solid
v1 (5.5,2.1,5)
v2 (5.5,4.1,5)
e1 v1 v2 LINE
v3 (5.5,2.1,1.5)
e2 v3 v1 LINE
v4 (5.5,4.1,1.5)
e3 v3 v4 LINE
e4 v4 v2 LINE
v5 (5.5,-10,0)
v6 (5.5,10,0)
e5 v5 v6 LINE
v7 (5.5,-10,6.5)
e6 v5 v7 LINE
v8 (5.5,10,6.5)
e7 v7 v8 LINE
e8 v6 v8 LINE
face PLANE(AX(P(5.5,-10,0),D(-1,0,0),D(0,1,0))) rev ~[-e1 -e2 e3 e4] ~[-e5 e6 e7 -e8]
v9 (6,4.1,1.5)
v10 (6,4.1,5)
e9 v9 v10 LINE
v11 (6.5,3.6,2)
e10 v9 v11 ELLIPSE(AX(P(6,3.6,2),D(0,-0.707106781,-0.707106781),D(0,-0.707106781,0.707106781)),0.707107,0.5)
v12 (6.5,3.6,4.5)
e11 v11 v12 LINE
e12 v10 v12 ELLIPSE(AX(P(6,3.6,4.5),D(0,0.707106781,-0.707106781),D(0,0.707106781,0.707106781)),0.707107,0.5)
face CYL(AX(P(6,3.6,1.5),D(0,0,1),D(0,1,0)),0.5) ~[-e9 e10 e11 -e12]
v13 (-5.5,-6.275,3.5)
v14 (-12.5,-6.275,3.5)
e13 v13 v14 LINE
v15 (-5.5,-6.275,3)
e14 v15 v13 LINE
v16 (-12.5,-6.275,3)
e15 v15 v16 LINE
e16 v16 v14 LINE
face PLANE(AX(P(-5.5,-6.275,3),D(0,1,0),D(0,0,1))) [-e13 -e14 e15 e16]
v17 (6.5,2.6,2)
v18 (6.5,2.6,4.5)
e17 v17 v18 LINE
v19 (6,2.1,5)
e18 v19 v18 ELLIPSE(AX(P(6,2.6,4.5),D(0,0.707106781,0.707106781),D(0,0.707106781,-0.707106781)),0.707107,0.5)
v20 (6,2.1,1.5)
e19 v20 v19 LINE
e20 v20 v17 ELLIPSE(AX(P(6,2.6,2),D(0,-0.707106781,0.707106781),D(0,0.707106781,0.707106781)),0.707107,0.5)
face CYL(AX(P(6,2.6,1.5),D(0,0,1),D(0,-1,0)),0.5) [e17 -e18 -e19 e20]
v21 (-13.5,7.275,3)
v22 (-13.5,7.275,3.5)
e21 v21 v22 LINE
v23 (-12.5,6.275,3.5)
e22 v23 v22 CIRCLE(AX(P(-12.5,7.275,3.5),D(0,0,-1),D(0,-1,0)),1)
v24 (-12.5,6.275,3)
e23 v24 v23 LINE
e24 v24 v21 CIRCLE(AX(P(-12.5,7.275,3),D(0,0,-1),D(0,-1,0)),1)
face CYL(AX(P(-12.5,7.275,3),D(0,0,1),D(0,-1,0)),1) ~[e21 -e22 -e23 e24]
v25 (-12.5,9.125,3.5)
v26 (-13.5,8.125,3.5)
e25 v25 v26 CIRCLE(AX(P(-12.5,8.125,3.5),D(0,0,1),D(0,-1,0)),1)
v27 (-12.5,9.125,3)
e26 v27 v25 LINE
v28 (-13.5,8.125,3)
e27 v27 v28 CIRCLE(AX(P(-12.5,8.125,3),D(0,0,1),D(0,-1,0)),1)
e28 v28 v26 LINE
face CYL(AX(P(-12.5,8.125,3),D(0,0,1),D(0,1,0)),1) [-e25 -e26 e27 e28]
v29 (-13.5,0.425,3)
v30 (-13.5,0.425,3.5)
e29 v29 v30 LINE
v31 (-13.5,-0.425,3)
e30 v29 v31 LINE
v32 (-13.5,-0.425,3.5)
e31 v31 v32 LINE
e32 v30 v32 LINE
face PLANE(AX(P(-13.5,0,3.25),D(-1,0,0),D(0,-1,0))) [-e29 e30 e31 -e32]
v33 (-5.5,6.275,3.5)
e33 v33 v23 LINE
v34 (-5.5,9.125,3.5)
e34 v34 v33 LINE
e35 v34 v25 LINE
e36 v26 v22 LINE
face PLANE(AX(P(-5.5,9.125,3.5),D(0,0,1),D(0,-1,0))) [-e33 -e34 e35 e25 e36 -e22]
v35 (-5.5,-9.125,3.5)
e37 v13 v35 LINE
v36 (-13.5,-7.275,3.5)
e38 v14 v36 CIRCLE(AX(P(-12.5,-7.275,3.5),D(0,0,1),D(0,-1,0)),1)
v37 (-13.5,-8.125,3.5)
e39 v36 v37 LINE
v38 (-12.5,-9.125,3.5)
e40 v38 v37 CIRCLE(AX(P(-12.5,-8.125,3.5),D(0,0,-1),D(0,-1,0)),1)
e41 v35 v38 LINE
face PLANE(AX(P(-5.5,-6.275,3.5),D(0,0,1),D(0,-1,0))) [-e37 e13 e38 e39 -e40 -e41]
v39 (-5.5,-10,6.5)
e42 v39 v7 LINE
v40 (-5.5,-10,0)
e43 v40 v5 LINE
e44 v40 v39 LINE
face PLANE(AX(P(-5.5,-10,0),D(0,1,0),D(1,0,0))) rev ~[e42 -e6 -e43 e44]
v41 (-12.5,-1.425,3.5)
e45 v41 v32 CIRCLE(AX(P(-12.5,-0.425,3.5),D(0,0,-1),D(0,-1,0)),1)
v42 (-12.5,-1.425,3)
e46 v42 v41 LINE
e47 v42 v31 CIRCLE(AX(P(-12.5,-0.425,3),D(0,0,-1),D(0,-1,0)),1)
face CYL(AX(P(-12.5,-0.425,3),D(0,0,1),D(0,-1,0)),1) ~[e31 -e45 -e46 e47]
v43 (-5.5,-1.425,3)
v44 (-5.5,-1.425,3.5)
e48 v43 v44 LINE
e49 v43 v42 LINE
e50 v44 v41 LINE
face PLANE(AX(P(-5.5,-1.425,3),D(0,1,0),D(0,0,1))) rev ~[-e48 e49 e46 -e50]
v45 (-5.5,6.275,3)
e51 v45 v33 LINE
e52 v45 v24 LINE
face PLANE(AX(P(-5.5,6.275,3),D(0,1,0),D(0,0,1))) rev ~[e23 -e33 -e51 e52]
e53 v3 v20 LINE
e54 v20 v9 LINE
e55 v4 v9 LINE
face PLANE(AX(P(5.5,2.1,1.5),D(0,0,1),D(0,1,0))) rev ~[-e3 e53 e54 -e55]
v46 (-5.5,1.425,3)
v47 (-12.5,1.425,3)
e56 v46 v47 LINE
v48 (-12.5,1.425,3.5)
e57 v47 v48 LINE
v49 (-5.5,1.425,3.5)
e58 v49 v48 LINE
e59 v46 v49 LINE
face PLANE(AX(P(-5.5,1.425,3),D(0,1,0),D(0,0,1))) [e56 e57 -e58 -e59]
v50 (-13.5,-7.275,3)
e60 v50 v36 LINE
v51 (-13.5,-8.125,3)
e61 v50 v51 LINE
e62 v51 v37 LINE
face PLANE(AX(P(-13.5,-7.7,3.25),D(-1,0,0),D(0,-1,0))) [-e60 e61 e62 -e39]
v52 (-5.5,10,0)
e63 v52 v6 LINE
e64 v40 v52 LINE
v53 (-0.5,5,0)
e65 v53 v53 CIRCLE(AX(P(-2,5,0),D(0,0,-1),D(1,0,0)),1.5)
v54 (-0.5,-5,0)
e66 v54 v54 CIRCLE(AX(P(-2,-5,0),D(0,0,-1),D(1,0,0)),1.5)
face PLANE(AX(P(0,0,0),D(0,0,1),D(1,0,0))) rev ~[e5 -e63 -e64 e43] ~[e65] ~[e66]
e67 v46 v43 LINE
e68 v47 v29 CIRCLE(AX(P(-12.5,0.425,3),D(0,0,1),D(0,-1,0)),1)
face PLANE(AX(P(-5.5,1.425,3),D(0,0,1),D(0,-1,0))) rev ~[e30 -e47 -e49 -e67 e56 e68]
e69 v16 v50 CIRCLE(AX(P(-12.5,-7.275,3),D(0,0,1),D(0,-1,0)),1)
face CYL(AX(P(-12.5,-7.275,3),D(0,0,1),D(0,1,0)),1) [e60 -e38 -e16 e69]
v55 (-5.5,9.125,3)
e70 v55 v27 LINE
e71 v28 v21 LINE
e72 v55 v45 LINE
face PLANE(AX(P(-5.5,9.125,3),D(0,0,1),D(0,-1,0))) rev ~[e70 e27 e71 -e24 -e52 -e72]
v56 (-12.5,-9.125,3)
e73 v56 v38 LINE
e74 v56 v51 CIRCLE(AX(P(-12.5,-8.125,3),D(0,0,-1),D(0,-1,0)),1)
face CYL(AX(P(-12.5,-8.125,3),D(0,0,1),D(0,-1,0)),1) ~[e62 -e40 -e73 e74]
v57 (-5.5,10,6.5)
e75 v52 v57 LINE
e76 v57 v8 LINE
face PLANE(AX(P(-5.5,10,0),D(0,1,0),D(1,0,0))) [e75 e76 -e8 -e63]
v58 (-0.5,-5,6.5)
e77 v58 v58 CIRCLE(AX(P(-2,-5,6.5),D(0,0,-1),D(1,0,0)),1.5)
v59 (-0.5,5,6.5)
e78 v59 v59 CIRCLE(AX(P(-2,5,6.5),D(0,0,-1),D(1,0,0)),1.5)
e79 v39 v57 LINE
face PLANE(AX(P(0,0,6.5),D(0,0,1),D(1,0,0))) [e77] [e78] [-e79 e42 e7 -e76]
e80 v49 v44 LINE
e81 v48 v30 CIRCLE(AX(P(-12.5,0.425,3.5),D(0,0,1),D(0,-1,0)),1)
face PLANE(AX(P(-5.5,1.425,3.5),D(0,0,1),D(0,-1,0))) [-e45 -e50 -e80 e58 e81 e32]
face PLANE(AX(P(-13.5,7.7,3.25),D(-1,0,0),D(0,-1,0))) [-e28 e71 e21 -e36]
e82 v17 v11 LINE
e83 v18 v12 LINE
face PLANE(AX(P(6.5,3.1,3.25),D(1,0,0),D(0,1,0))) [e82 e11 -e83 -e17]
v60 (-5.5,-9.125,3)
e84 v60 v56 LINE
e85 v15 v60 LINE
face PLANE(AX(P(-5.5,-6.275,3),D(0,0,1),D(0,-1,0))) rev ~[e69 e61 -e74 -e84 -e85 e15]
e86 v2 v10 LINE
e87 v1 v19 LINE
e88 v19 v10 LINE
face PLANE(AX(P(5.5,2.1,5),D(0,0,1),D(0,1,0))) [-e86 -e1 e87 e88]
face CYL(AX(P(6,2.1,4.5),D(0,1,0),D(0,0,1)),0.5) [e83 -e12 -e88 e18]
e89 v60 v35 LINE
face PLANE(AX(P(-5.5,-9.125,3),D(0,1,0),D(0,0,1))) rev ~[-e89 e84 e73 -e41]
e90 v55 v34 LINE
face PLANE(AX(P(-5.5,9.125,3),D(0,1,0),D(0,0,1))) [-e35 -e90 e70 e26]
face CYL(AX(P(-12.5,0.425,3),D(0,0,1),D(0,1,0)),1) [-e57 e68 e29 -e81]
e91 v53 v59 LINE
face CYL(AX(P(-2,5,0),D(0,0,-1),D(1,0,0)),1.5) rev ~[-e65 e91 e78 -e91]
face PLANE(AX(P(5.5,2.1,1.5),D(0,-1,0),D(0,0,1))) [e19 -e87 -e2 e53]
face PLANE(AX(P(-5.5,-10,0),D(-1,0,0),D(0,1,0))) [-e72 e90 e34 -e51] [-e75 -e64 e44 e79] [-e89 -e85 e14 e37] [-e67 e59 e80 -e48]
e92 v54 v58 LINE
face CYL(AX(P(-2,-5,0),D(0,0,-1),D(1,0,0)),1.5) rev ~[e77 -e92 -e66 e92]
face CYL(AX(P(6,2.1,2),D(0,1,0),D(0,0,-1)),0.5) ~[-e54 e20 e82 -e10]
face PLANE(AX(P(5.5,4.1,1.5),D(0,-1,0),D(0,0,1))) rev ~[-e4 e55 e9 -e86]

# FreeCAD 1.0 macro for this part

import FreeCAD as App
import Part
import Sketcher


def edges_at(feature, points):
    """Names of the edges that pass closest to the given points."""
    edges = feature.Shape.Edges
    near = lambda p: min(range(len(edges)), key=lambda i: edges[i].distToShape(Part.Vertex(*p))[0])
    return sorted({f"Edge{near(p) + 1}" for p in points})

doc = App.newDocument("Part")
body = doc.addObject("PartDesign::Body", "Body")

# Sketch on XY plane
sketch1 = body.newObject("Sketcher::SketchObject", "Sketch")
sketch1.AttachmentSupport = (doc.getObject("XY_Plane"), [""])
sketch1.MapMode = "FlatFace"
sketch1.addGeometry(Part.LineSegment(App.Vector(-6, 10, 0), App.Vector(-6, -10, 0)), False)
sketch1.addGeometry(Part.LineSegment(App.Vector(-6, -10, 0), App.Vector(6, -10, 0)), False)
sketch1.addGeometry(Part.LineSegment(App.Vector(6, -10, 0), App.Vector(6, 10, 0)), False)
sketch1.addGeometry(Part.LineSegment(App.Vector(6, 10, 0), App.Vector(-6, 10, 0)), False)
sketch1.addConstraint(Sketcher.Constraint("Coincident", 0, 2, 1, 1))
sketch1.addConstraint(Sketcher.Constraint("Coincident", 1, 2, 2, 1))
sketch1.addConstraint(Sketcher.Constraint("Coincident", 2, 2, 3, 1))
sketch1.addConstraint(Sketcher.Constraint("Coincident", 3, 2, 0, 1))
sketch1.addConstraint(Sketcher.Constraint("Vertical", 0))
sketch1.addConstraint(Sketcher.Constraint("Horizontal", 1))
sketch1.addConstraint(Sketcher.Constraint("Vertical", 2))
sketch1.addConstraint(Sketcher.Constraint("Horizontal", 3))
sketch1.addConstraint(Sketcher.Constraint("Symmetric", 0, 2, 2, 2, -1, 1))
sketch1.addConstraint(Sketcher.Constraint("DistanceX", 1, 1, 1, 2, 11.0))
sketch1.addConstraint(Sketcher.Constraint("DistanceY", 0, 2, 0, 1, 20.0))
pad1 = body.newObject("PartDesign::Pad", "Pad")
pad1.Profile = sketch1
pad1.Length = 6.5

# Sketch on YZ plane
sketch2 = body.newObject("Sketcher::SketchObject", "Sketch001")
sketch2.AttachmentSupport = (doc.getObject("YZ_Plane"), [""])
sketch2.MapMode = "FlatFace"
sketch2.AttachmentOffset = App.Placement(App.Vector(0, 0, -5.5), App.Rotation())
sketch2.addGeometry(Part.LineSegment(App.Vector(9.1, 3.5, 0), App.Vector(9.1, 3, 0)), False)
sketch2.addGeometry(Part.LineSegment(App.Vector(9.1, 3, 0), App.Vector(6.3, 3, 0)), False)
sketch2.addGeometry(Part.LineSegment(App.Vector(6.3, 3, 0), App.Vector(6.3, 3.5, 0)), False)
sketch2.addGeometry(Part.LineSegment(App.Vector(6.3, 3.5, 0), App.Vector(9.1, 3.5, 0)), False)
sketch2.addGeometry(Part.LineSegment(App.Vector(1.4, 3.5, 0), App.Vector(1.4, 3, 0)), False)
sketch2.addGeometry(Part.LineSegment(App.Vector(1.4, 3, 0), App.Vector(-1.4, 3, 0)), False)
sketch2.addGeometry(Part.LineSegment(App.Vector(-1.4, 3, 0), App.Vector(-1.4, 3.5, 0)), False)
sketch2.addGeometry(Part.LineSegment(App.Vector(-1.4, 3.5, 0), App.Vector(1.4, 3.5, 0)), False)
sketch2.addGeometry(Part.LineSegment(App.Vector(-6.3, 3.5, 0), App.Vector(-6.3, 3, 0)), False)
sketch2.addGeometry(Part.LineSegment(App.Vector(-6.3, 3, 0), App.Vector(-9.1, 3, 0)), False)
sketch2.addGeometry(Part.LineSegment(App.Vector(-9.1, 3, 0), App.Vector(-9.1, 3.5, 0)), False)
sketch2.addGeometry(Part.LineSegment(App.Vector(-9.1, 3.5, 0), App.Vector(-6.3, 3.5, 0)), False)
sketch2.addConstraint(Sketcher.Constraint("Coincident", 0, 2, 1, 1))
sketch2.addConstraint(Sketcher.Constraint("Coincident", 1, 2, 2, 1))
sketch2.addConstraint(Sketcher.Constraint("Coincident", 2, 2, 3, 1))
sketch2.addConstraint(Sketcher.Constraint("Coincident", 3, 2, 0, 1))
sketch2.addConstraint(Sketcher.Constraint("Coincident", 4, 2, 5, 1))
sketch2.addConstraint(Sketcher.Constraint("Coincident", 5, 2, 6, 1))
sketch2.addConstraint(Sketcher.Constraint("Coincident", 6, 2, 7, 1))
sketch2.addConstraint(Sketcher.Constraint("Coincident", 7, 2, 4, 1))
sketch2.addConstraint(Sketcher.Constraint("Coincident", 8, 2, 9, 1))
sketch2.addConstraint(Sketcher.Constraint("Coincident", 9, 2, 10, 1))
sketch2.addConstraint(Sketcher.Constraint("Coincident", 10, 2, 11, 1))
sketch2.addConstraint(Sketcher.Constraint("Coincident", 11, 2, 8, 1))
sketch2.addConstraint(Sketcher.Constraint("Vertical", 0))
sketch2.addConstraint(Sketcher.Constraint("Horizontal", 1))
sketch2.addConstraint(Sketcher.Constraint("Vertical", 2))
sketch2.addConstraint(Sketcher.Constraint("Horizontal", 3))
sketch2.addConstraint(Sketcher.Constraint("Vertical", 4))
sketch2.addConstraint(Sketcher.Constraint("Horizontal", 5))
sketch2.addConstraint(Sketcher.Constraint("Vertical", 6))
sketch2.addConstraint(Sketcher.Constraint("Horizontal", 7))
sketch2.addConstraint(Sketcher.Constraint("Vertical", 8))
sketch2.addConstraint(Sketcher.Constraint("Horizontal", 9))
sketch2.addConstraint(Sketcher.Constraint("Vertical", 10))
sketch2.addConstraint(Sketcher.Constraint("Horizontal", 11))
sketch2.addConstraint(Sketcher.Constraint("Symmetric", 1, 2, 8, 2, -2))
sketch2.addConstraint(Sketcher.Constraint("Symmetric", 3, 2, 10, 2, -2))
sketch2.addConstraint(Sketcher.Constraint("Horizontal", 1, 2, 4, 2))
sketch2.addConstraint(Sketcher.Constraint("Horizontal", 3, 2, 6, 2))
sketch2.addConstraint(Sketcher.Constraint("Equal", 3, 5))
sketch2.addConstraint(Sketcher.Constraint("DistanceY", 0, 2, 0, 1, 0.5))
sketch2.addConstraint(Sketcher.Constraint("DistanceY", -1, 1, 0, 2, 3.0))
sketch2.addConstraint(Sketcher.Constraint("DistanceX", 1, 2, 1, 1, 2.85))
sketch2.addConstraint(Sketcher.Constraint("DistanceX", 4, 2, 0, 2, 7.7))
sketch2.addConstraint(Sketcher.Constraint("DistanceX", 8, 2, 4, 2, 7.7))
pad2 = body.newObject("PartDesign::Pad", "Pad001")
pad2.Profile = sketch2
pad2.Length = 8
pad2.Reversed = True
doc.recompute()

fillet = body.newObject("PartDesign::Fillet", "Fillet")
fillet.Base = (pad2, edges_at(pad2, [
    (-13.5, -6.275, 3.25),
    (-13.5, -9.125, 3.25),
    (-13.5, -1.425, 3.25),
    (-13.5, 1.425, 3.25),
    (-13.5, 6.275, 3.25),
    (-13.5, 9.125, 3.25),
]))
fillet.Radius = 1

# Sketch on YZ plane
sketch3 = body.newObject("Sketcher::SketchObject", "Sketch002")
sketch3.AttachmentSupport = (doc.getObject("YZ_Plane"), [""])
sketch3.MapMode = "FlatFace"
sketch3.AttachmentOffset = App.Placement(App.Vector(0, 0, 5.5), App.Rotation())
sketch3.addGeometry(Part.LineSegment(App.Vector(2.1, 5, 0), App.Vector(2.1, 1.5, 0)), False)
sketch3.addGeometry(Part.LineSegment(App.Vector(2.1, 1.5, 0), App.Vector(4.1, 1.5, 0)), False)
sketch3.addGeometry(Part.LineSegment(App.Vector(4.1, 1.5, 0), App.Vector(4.1, 5, 0)), False)
sketch3.addGeometry(Part.LineSegment(App.Vector(4.1, 5, 0), App.Vector(2.1, 5, 0)), False)
sketch3.addConstraint(Sketcher.Constraint("Coincident", 0, 2, 1, 1))
sketch3.addConstraint(Sketcher.Constraint("Coincident", 1, 2, 2, 1))
sketch3.addConstraint(Sketcher.Constraint("Coincident", 2, 2, 3, 1))
sketch3.addConstraint(Sketcher.Constraint("Coincident", 3, 2, 0, 1))
sketch3.addConstraint(Sketcher.Constraint("Vertical", 0))
sketch3.addConstraint(Sketcher.Constraint("Horizontal", 1))
sketch3.addConstraint(Sketcher.Constraint("Vertical", 2))
sketch3.addConstraint(Sketcher.Constraint("Horizontal", 3))
sketch3.addConstraint(Sketcher.Constraint("DistanceX", 1, 1, 1, 2, 2.0))
sketch3.addConstraint(Sketcher.Constraint("DistanceY", 0, 2, 0, 1, 3.5))
sketch3.addConstraint(Sketcher.Constraint("DistanceY", -1, 1, 2, 2, 5.0))
sketch3.addConstraint(Sketcher.Constraint("DistanceX", -1, 1, 0, 2, 2.1))
pad3 = body.newObject("PartDesign::Pad", "Pad002")
pad3.Profile = sketch3
pad3.Length = 1
doc.recompute()

fillet2 = body.newObject("PartDesign::Fillet", "Fillet001")
fillet2.Base = (pad3, edges_at(pad3, [
    (6.5, 3.1, 5),
    (6.5, 4.1, 3.25),
    (6.5, 3.1, 1.5),
    (6.5, 2.1, 3.25),
]))
fillet2.Radius = 0.5

# Sketch on XY plane
sketch4 = body.newObject("Sketcher::SketchObject", "Sketch003")
sketch4.AttachmentSupport = (doc.getObject("XY_Plane"), [""])
sketch4.MapMode = "FlatFace"
sketch4.addGeometry(Part.Circle(App.Vector(-2, -5, 0), App.Vector(0, 0, 1), 1.5), False)
sketch4.addGeometry(Part.Circle(App.Vector(-2, 5, 0), App.Vector(0, 0, 1), 1.5), False)
sketch4.addConstraint(Sketcher.Constraint("Equal", 0, 1))
sketch4.addConstraint(Sketcher.Constraint("Symmetric", 0, 3, 1, 3, -1))
sketch4.addConstraint(Sketcher.Constraint("Diameter", 0, 3.0))
sketch4.addConstraint(Sketcher.Constraint("DistanceX", 0, 3, -1, 1, 2.0))
sketch4.addConstraint(Sketcher.Constraint("DistanceY", 0, 3, -1, 1, 5.0))
pocket1 = body.newObject("PartDesign::Pocket", "Pocket")
pocket1.Profile = sketch4
pocket1.Type = "ThroughAll"
pocket1.Reversed = True

doc.recompute()
